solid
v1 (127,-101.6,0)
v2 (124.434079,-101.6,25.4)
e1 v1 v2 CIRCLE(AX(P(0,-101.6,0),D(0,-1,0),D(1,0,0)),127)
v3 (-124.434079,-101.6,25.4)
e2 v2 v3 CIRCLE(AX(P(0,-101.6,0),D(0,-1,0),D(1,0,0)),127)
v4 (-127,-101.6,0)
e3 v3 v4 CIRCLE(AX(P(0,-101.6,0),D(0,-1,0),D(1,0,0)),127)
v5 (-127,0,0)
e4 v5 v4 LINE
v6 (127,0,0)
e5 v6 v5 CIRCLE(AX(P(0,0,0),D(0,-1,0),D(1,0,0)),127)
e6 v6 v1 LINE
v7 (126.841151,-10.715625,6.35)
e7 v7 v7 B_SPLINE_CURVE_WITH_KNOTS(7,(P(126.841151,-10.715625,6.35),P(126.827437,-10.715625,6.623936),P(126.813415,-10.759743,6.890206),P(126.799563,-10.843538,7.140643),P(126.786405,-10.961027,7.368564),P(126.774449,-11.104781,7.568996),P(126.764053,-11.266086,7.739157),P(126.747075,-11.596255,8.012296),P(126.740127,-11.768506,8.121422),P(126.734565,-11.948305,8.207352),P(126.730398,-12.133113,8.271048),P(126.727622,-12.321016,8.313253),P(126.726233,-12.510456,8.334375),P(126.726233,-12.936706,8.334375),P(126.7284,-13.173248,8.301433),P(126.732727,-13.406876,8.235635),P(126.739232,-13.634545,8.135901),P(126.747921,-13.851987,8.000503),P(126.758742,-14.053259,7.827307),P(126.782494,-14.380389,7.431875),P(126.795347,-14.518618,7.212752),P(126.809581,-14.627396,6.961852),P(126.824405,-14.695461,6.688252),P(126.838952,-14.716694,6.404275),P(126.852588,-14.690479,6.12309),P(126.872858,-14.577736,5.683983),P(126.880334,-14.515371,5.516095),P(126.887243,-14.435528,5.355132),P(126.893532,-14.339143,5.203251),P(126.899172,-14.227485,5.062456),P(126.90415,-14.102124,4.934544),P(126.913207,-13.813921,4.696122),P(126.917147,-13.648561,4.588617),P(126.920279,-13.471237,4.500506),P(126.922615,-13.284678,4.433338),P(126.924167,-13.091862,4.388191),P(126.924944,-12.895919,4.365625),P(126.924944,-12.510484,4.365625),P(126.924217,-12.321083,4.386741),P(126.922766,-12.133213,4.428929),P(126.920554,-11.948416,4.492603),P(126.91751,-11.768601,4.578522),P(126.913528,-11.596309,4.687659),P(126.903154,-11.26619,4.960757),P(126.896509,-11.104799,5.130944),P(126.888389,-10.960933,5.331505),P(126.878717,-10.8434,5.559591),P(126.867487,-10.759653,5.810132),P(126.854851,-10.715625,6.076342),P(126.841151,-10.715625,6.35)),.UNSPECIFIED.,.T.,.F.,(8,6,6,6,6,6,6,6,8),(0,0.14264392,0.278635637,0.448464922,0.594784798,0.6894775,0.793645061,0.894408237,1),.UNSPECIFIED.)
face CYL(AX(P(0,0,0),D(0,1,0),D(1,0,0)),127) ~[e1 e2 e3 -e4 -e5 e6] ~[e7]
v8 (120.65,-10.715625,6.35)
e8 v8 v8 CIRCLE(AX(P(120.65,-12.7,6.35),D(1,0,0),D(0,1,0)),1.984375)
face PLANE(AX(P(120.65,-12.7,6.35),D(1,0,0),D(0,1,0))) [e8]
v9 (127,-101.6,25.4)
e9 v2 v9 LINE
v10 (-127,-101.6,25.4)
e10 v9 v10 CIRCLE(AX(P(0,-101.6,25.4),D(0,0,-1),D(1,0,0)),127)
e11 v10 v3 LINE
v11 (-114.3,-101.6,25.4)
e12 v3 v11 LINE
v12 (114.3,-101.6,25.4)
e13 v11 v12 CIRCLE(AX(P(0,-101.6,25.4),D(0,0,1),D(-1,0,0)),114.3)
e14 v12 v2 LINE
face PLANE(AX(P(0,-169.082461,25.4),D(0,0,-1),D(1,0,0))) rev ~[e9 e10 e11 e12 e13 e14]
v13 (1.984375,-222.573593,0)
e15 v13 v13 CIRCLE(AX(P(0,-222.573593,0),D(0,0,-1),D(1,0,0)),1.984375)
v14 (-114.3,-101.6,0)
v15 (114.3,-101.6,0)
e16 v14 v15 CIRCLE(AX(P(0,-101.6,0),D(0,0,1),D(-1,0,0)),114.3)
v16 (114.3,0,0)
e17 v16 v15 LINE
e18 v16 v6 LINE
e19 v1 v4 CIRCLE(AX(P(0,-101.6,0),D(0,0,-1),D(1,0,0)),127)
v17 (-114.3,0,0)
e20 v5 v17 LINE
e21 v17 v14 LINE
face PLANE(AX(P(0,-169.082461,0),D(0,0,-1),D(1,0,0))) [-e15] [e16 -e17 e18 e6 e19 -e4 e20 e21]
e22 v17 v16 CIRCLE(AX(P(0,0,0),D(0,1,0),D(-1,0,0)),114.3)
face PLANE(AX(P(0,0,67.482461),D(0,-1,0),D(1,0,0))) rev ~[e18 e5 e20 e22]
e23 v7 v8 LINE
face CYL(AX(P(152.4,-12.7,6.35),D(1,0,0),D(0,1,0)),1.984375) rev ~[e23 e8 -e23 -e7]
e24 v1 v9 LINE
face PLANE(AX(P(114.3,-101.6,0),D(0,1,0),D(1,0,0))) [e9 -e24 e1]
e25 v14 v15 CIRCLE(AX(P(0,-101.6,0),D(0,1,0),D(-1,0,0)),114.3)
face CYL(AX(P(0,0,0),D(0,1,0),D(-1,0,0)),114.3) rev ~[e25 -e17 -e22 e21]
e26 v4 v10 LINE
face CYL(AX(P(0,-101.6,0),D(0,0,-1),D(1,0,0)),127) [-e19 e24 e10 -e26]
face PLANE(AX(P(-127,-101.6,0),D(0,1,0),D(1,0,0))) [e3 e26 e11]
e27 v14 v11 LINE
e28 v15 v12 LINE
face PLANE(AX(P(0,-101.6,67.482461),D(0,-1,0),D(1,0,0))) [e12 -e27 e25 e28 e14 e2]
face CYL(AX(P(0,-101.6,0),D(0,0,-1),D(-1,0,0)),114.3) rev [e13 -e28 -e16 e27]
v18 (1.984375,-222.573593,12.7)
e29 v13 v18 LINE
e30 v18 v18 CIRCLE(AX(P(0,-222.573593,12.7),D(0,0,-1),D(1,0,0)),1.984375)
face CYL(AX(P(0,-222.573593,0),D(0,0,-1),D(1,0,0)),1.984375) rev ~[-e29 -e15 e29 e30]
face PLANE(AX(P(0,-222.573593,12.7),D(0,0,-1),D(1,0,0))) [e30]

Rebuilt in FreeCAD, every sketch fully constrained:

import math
import FreeCAD as App
import Part
import Sketcher
from FreeCAD import Vector
Q = App.Units.Quantity

doc = App.newDocument("Part")
params = doc.addObject("Spreadsheet::Sheet", "Params")
for row, (alias, value) in enumerate([
    ("sketch1_radius", "5 in"),
    ("sketch1_radius2", "4.5 in"),
    ("pad1_length", "4 in"),
    ("sketch2_diameter", "0.15625 in"),
    ("pocket1_length", "1 in"),
    ("sketch3_diameter", "0.15625 in"),
    ("pocket2_length", "1.25 in"),
    ("sketch4_radius", "5 in"),
    ("sketch4_radius2", "4.5 in"),
    ("pad2_length", "1 in"),
    ("sketch5_diameter", "0.15625 in"),
    ("pocket3_length", "0.5 in"),
], start=1):
    params.set(f"A{row}", alias)
    params.set(f"B{row}", "=" + value)
    params.setAlias(f"B{row}", alias)

body = doc.addObject("PartDesign::Body", "Body")

sketch1 = body.newObject("Sketcher::SketchObject", "Sketch")
sketch1.AttachmentSupport = (doc.getObject("XZ_Plane"), [""])
sketch1.MapMode = "FlatFace"
sketch1.addGeometry(Part.LineSegment(Vector(114, 0, 0), Vector(127, 0, 0)), False)
sketch1.addGeometry(Part.ArcOfCircle(Part.Circle(Vector(0, 0, 0), Vector(0, 0, 1), 127), math.radians(0), math.radians(180)), False)
sketch1.addGeometry(Part.LineSegment(Vector(-127, 0, 0), Vector(-114, 0, 0)), False)
sketch1.addGeometry(Part.ArcOfCircle(Part.Circle(Vector(0, 0, 0), Vector(0, 0, 1), 114), math.radians(0), math.radians(180)), False)
sketch1.addConstraint(Sketcher.Constraint("Coincident", 0, 2, 1, 1))
sketch1.addConstraint(Sketcher.Constraint("Coincident", 1, 2, 2, 1))
sketch1.addConstraint(Sketcher.Constraint("Coincident", 2, 2, 3, 2))
sketch1.addConstraint(Sketcher.Constraint("Coincident", 3, 1, 0, 1))
sketch1.addConstraint(Sketcher.Constraint("Horizontal", 0))
sketch1.addConstraint(Sketcher.Constraint("Horizontal", 2))
sketch1.addConstraint(Sketcher.Constraint("Coincident", 1, 3, -1, 1))
sketch1.addConstraint(Sketcher.Constraint("Coincident", 3, 3, -1, 1))
sketch1.addConstraint(Sketcher.Constraint("PointOnObject", 0, 2, -1))
sketch1.addConstraint(Sketcher.Constraint("PointOnObject", 1, 2, -1))
sketch1.addConstraint(Sketcher.Constraint("Radius", 1, Q("5 in")))
sketch1.addConstraint(Sketcher.Constraint("Radius", 3, Q("4.5 in")))
sketch1.setExpression("Constraints[10]", "Params.sketch1_radius")
sketch1.setExpression("Constraints[11]", "Params.sketch1_radius2")
pad1 = body.newObject("PartDesign::Pad", "Pad")
pad1.Profile = sketch1
pad1.setExpression("Length", "Params.pad1_length")

sketch2 = body.newObject("Sketcher::SketchObject", "Sketch001")
sketch2.AttachmentSupport = (doc.getObject("XY_Plane"), [""])
sketch2.MapMode = "FlatFace"
sketch2.addGeometry(Part.Circle(Vector(0, -222.6, 0), Vector(0, 0, 1), 2), False)
sketch2.addConstraint(Sketcher.Constraint("PointOnObject", 0, 3, -2))
sketch2.addConstraint(Sketcher.Constraint("Diameter", 0, Q("0.15625 in")))
sketch2.addConstraint(Sketcher.Constraint("DistanceY", 0, 3, -1, 1, 222.573593))
sketch2.setExpression("Constraints[1]", "Params.sketch2_diameter")
pocket1 = body.newObject("PartDesign::Pocket", "Pocket")
pocket1.Profile = sketch2
pocket1.setExpression("Length", "Params.pocket1_length")
pocket1.Reversed = True

sketch3 = body.newObject("Sketcher::SketchObject", "Sketch002")
sketch3.AttachmentSupport = (doc.getObject("YZ_Plane"), [""])
sketch3.MapMode = "FlatFace"
sketch3.AttachmentOffset = App.Placement(Vector(0, 0, 6 * 25.4), App.Rotation())
sketch3.addGeometry(Part.Circle(Vector(-12.7, 6.3, 0), Vector(0, 0, 1), 2), False)
sketch3.addConstraint(Sketcher.Constraint("Diameter", 0, Q("0.15625 in")))
sketch3.addConstraint(Sketcher.Constraint("DistanceX", 0, 3, -1, 1, Q("0.5 in")))
sketch3.addConstraint(Sketcher.Constraint("DistanceY", -1, 1, 0, 3, Q("0.25 in")))
sketch3.setExpression("Constraints[0]", "Params.sketch3_diameter")
pocket2 = body.newObject("PartDesign::Pocket", "Pocket001")
pocket2.Profile = sketch3
pocket2.setExpression("Length", "Params.pocket2_length")

sketch4 = body.newObject("Sketcher::SketchObject", "Sketch003")
sketch4.AttachmentSupport = (doc.getObject("XY_Plane"), [""])
sketch4.MapMode = "FlatFace"
sketch4.addGeometry(Part.ArcOfCircle(Part.Circle(Vector(0, -102, 0), Vector(0, 0, 1), 114), math.radians(180), math.radians(360)), False)
sketch4.addGeometry(Part.LineSegment(Vector(114, -102, 0), Vector(127, -102, 0)), False)
sketch4.addGeometry(Part.ArcOfCircle(Part.Circle(Vector(0, -102, 0), Vector(0, 0, 1), 127), math.radians(180), math.radians(360)), False)
sketch4.addGeometry(Part.LineSegment(Vector(-127, -102, 0), Vector(-114, -102, 0)), False)
sketch4.addConstraint(Sketcher.Constraint("Coincident", 0, 2, 1, 1))
sketch4.addConstraint(Sketcher.Constraint("Coincident", 1, 2, 2, 2))
sketch4.addConstraint(Sketcher.Constraint("Coincident", 2, 1, 3, 1))
sketch4.addConstraint(Sketcher.Constraint("Coincident", 3, 2, 0, 1))
sketch4.addConstraint(Sketcher.Constraint("Horizontal", 1))
sketch4.addConstraint(Sketcher.Constraint("Horizontal", 3))
sketch4.addConstraint(Sketcher.Constraint("Coincident", 2, 3, 0, 3))
sketch4.addConstraint(Sketcher.Constraint("Symmetric", 1, 2, 2, 1, -2))
sketch4.addConstraint(Sketcher.Constraint("Horizontal", 2, 3, 0, 2))
sketch4.addConstraint(Sketcher.Constraint("Radius", 2, Q("5 in")))
sketch4.addConstraint(Sketcher.Constraint("Radius", 0, Q("4.5 in")))
sketch4.addConstraint(Sketcher.Constraint("DistanceY", 0, 3, -1, 1, Q("4 in")))
sketch4.setExpression("Constraints[9]", "Params.sketch4_radius")
sketch4.setExpression("Constraints[10]", "Params.sketch4_radius2")
pad2 = body.newObject("PartDesign::Pad", "Pad001")
pad2.Profile = sketch4
pad2.setExpression("Length", "Params.pad2_length")

sketch5 = body.newObject("Sketcher::SketchObject", "Sketch004")
sketch5.AttachmentSupport = (doc.getObject("XY_Plane"), [""])
sketch5.MapMode = "FlatFace"
sketch5.addGeometry(Part.Circle(Vector(0, -222.6, 0), Vector(0, 0, 1), 2), False)
sketch5.addConstraint(Sketcher.Constraint("PointOnObject", 0, 3, -2))
sketch5.addConstraint(Sketcher.Constraint("Diameter", 0, Q("0.15625 in")))
sketch5.addConstraint(Sketcher.Constraint("DistanceY", 0, 3, -1, 1, 222.573593))
sketch5.setExpression("Constraints[1]", "Params.sketch5_diameter")
pocket3 = body.newObject("PartDesign::Pocket", "Pocket002")
pocket3.Profile = sketch5
pocket3.setExpression("Length", "Params.pocket3_length")
pocket3.Reversed = True

doc.recompute()
